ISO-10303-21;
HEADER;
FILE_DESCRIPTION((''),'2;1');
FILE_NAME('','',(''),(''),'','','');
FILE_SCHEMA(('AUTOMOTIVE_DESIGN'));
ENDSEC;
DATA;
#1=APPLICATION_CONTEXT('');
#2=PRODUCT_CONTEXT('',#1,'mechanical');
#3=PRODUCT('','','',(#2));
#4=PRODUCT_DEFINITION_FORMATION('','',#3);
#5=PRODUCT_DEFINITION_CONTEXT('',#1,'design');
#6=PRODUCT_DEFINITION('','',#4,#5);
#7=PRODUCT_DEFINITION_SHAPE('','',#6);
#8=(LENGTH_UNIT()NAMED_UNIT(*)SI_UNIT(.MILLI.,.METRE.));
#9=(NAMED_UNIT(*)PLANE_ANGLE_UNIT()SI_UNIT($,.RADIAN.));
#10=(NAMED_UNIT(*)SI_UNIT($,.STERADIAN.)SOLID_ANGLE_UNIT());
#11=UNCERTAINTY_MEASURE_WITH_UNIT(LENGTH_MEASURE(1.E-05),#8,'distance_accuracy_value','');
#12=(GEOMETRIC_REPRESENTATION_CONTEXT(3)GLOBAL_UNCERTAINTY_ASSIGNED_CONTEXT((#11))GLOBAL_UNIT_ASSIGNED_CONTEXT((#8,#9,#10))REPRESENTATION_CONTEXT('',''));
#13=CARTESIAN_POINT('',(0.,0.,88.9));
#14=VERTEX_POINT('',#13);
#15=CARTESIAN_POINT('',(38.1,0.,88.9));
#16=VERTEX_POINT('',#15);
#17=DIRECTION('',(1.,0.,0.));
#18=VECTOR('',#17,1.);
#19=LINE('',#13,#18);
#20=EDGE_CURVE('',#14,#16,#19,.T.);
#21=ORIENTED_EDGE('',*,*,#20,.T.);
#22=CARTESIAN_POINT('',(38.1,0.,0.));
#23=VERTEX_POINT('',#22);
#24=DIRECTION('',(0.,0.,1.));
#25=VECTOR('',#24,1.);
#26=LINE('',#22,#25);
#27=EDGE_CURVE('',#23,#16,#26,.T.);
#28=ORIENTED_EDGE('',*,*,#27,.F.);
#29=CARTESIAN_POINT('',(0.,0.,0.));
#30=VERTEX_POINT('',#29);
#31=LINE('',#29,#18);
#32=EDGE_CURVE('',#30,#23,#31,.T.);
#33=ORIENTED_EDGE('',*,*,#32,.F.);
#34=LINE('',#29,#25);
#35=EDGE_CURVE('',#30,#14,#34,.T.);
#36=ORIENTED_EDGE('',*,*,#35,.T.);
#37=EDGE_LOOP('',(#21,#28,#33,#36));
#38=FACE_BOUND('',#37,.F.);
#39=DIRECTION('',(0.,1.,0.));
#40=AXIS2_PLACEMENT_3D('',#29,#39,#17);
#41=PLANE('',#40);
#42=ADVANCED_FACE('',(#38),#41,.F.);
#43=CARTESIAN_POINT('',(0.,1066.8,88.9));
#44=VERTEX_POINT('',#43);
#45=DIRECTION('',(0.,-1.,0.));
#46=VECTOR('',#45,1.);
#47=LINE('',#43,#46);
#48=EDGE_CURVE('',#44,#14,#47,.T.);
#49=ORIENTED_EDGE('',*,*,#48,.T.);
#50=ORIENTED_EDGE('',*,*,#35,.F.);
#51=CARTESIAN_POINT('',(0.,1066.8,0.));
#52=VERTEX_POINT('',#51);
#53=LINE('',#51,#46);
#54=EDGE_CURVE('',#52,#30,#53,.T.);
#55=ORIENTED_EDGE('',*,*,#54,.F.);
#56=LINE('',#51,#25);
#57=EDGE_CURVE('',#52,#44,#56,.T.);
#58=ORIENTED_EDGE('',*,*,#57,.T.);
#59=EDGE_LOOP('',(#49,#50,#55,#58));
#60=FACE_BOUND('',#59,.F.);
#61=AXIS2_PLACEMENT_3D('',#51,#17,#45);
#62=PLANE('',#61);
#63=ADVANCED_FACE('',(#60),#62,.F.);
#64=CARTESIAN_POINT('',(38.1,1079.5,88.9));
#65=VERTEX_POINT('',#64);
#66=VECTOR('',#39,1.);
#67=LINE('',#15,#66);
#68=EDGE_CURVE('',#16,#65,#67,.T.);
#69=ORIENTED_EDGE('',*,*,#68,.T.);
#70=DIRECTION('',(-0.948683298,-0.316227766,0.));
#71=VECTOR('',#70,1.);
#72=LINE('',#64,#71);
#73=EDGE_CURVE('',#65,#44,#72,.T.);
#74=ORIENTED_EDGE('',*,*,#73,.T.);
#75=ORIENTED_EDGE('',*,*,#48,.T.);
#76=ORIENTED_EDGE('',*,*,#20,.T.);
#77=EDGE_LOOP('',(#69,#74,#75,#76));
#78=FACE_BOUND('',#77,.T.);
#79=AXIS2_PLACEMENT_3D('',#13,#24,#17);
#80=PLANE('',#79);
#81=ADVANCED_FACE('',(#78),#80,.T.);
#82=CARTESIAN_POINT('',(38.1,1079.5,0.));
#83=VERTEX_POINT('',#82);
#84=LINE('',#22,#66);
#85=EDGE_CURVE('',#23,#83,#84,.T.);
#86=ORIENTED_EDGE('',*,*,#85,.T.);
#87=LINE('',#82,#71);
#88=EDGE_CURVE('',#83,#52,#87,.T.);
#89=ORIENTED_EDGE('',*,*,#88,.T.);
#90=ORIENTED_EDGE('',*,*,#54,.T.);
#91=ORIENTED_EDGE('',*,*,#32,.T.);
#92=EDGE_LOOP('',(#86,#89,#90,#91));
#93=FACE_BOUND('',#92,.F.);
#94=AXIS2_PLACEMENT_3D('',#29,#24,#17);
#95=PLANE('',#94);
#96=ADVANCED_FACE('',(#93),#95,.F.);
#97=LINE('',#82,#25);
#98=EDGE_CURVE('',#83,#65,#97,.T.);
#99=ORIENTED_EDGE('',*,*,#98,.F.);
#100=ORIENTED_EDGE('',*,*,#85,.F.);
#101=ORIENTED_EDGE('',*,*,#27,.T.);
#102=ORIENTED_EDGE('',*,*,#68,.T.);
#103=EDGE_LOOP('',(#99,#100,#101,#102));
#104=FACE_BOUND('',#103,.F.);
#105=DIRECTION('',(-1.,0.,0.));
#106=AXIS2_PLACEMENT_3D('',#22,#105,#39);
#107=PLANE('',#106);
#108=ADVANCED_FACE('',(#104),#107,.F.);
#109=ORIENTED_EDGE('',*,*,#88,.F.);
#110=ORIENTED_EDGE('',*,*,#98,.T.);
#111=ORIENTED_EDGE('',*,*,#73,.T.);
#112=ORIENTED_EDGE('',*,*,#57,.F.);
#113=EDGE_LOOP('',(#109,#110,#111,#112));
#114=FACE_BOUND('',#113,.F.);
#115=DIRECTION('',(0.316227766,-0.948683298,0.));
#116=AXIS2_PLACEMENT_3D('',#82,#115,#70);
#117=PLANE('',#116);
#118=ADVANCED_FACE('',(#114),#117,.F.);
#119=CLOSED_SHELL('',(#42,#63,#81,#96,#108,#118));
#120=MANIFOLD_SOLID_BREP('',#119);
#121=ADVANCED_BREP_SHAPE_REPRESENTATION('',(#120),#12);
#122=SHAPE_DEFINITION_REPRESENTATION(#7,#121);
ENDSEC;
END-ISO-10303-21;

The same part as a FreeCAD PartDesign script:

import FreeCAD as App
import Part
import Sketcher
Q = App.Units.Quantity


def add_polygon(sketch, points):
    """Adds a closed chain of lines whose ends are joined by coincident constraints."""
    first, n = sketch.GeometryCount, len(points)
    for a, b in zip(points, points[1:] + points[:1]):
        sketch.addGeometry(Part.LineSegment(App.Vector(*a, 0), App.Vector(*b, 0)), False)
    for i in range(n):
        sketch.addConstraint(Sketcher.Constraint("Coincident", first + i, 2, first + (i + 1) % n, 1))

doc = App.newDocument("Part")
body = doc.addObject("PartDesign::Body", "Body")

# Sketch on XY plane
sketch1 = body.newObject("Sketcher::SketchObject", "Sketch")
sketch1.AttachmentSupport = (doc.getObject("XY_Plane"), [""])
sketch1.MapMode = "FlatFace"
add_polygon(sketch1, [(0, 1067), (0, 0), (38, 0), (38, 1080)])  # lines 0-3
sketch1.addConstraint([
    Sketcher.Constraint("Vertical", 0),
    Sketcher.Constraint("Horizontal", 1),
    Sketcher.Constraint("Vertical", 2),
    Sketcher.Constraint("Coincident", 0, 2, -1, 1),
    Sketcher.Constraint("DistanceY", 0, 2, 0, 1, Q("42 in")),
    Sketcher.Constraint("DistanceX", 1, 1, 1, 2, Q("1.5 in")),
    Sketcher.Constraint("DistanceY", 2, 1, 2, 2, Q("42.5 in")),
])
pad1 = body.newObject("PartDesign::Pad", "Pad")
pad1.Profile = sketch1
pad1.Length = Q("3.5 in")

doc.recompute()
